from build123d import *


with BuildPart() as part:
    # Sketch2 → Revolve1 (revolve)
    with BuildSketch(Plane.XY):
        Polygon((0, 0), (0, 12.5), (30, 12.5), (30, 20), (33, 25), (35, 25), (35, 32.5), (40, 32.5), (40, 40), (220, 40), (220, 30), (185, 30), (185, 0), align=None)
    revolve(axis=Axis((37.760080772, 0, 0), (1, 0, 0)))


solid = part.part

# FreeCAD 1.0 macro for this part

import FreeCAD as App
import Part
import Sketcher
Q = App.Units.Quantity

doc = App.newDocument("Part")
body = doc.addObject("PartDesign::Body", "Body")

# Sketch on XY plane
sketch1 = doc.addObject("Sketcher::SketchObject", "Sketch")
body.addObject(sketch1)
sketch1.AttachmentSupport = (doc.XY_Plane, [""])
sketch1.MapMode = "FlatFace"
sketch1.addGeometry([
    Part.LineSegment(App.Vector(0, 12.5, 0), App.Vector(0, 0, 0)),  # 0
    Part.LineSegment(App.Vector(0, 0, 0), App.Vector(185, 0, 0)),  # 1
    Part.LineSegment(App.Vector(185, 0, 0), App.Vector(185, 30, 0)),  # 2
    Part.LineSegment(App.Vector(185, 30, 0), App.Vector(220, 30, 0)),  # 3
    Part.LineSegment(App.Vector(220, 30, 0), App.Vector(220, 40, 0)),  # 4
    Part.LineSegment(App.Vector(220, 40, 0), App.Vector(40, 40, 0)),  # 5
    Part.LineSegment(App.Vector(40, 40, 0), App.Vector(40, 32.5, 0)),  # 6
    Part.LineSegment(App.Vector(40, 32.5, 0), App.Vector(35, 32.5, 0)),  # 7
    Part.LineSegment(App.Vector(35, 32.5, 0), App.Vector(35, 25, 0)),  # 8
    Part.LineSegment(App.Vector(35, 25, 0), App.Vector(33, 25, 0)),  # 9
    Part.LineSegment(App.Vector(33, 25, 0), App.Vector(30, 20, 0)),  # 10
    Part.LineSegment(App.Vector(30, 20, 0), App.Vector(30, 12.5, 0)),  # 11
    Part.LineSegment(App.Vector(30, 12.5, 0), App.Vector(0, 12.5, 0)),  # 12
], False)
sketch1.addConstraint([
    Sketcher.Constraint("Coincident", 0, 2, 1, 1),
    Sketcher.Constraint("Coincident", 1, 2, 2, 1),
    Sketcher.Constraint("Coincident", 2, 2, 3, 1),
    Sketcher.Constraint("Coincident", 3, 2, 4, 1),
    Sketcher.Constraint("Coincident", 4, 2, 5, 1),
    Sketcher.Constraint("Coincident", 5, 2, 6, 1),
    Sketcher.Constraint("Coincident", 6, 2, 7, 1),
    Sketcher.Constraint("Coincident", 7, 2, 8, 1),
    Sketcher.Constraint("Coincident", 8, 2, 9, 1),
    Sketcher.Constraint("Coincident", 9, 2, 10, 1),
    Sketcher.Constraint("Coincident", 10, 2, 11, 1),
    Sketcher.Constraint("Coincident", 11, 2, 12, 1),
    Sketcher.Constraint("Coincident", 12, 2, 0, 1),
    Sketcher.Constraint("Vertical", 0),
    Sketcher.Constraint("Horizontal", 1),
    Sketcher.Constraint("Vertical", 2),
    Sketcher.Constraint("Horizontal", 3),
    Sketcher.Constraint("Vertical", 4),
    Sketcher.Constraint("Horizontal", 5),
    Sketcher.Constraint("Vertical", 6),
    Sketcher.Constraint("Horizontal", 7),
    Sketcher.Constraint("Vertical", 8),
    Sketcher.Constraint("Horizontal", 9),
    Sketcher.Constraint("Vertical", 11),
    Sketcher.Constraint("Horizontal", 12),
    Sketcher.Constraint("Coincident", 0, 2, -1, 1),
    Sketcher.Constraint("Equal", 12, 2),
    Sketcher.Constraint("Equal", 6, 8),
    Sketcher.Constraint("Equal", 8, 11),
    Sketcher.Constraint("DistanceX", 1, 1, 1, 2, Q("185 mm")),
    Sketcher.Constraint("DistanceX", 3, 1, 3, 2, Q("35 mm")),
    Sketcher.Constraint("DistanceX", 5, 2, 5, 1, Q("180 mm")),
    Sketcher.Constraint("DistanceX", 7, 2, 7, 1, Q("5 mm")),
    Sketcher.Constraint("DistanceX", 9, 2, 9, 1, Q("2 mm")),
    Sketcher.Constraint("DistanceX", 12, 2, 12, 1, Q("30 mm")),
    Sketcher.Constraint("DistanceY", 4, 1, 4, 2, Q("10 mm")),
    Sketcher.Constraint("DistanceY", 0, 2, 0, 1, Q("12.5 mm")),
    Sketcher.Constraint("DistanceY", 6, 2, 6, 1, Q("7.5 mm")),
])
revolution = doc.addObject("PartDesign::Revolution", "Revolution")
body.addObject(revolution)
revolution.Profile = sketch1
revolution.ReferenceAxis = (sketch1, ["H_Axis"])
revolution.Angle = 360

doc.recompute()
